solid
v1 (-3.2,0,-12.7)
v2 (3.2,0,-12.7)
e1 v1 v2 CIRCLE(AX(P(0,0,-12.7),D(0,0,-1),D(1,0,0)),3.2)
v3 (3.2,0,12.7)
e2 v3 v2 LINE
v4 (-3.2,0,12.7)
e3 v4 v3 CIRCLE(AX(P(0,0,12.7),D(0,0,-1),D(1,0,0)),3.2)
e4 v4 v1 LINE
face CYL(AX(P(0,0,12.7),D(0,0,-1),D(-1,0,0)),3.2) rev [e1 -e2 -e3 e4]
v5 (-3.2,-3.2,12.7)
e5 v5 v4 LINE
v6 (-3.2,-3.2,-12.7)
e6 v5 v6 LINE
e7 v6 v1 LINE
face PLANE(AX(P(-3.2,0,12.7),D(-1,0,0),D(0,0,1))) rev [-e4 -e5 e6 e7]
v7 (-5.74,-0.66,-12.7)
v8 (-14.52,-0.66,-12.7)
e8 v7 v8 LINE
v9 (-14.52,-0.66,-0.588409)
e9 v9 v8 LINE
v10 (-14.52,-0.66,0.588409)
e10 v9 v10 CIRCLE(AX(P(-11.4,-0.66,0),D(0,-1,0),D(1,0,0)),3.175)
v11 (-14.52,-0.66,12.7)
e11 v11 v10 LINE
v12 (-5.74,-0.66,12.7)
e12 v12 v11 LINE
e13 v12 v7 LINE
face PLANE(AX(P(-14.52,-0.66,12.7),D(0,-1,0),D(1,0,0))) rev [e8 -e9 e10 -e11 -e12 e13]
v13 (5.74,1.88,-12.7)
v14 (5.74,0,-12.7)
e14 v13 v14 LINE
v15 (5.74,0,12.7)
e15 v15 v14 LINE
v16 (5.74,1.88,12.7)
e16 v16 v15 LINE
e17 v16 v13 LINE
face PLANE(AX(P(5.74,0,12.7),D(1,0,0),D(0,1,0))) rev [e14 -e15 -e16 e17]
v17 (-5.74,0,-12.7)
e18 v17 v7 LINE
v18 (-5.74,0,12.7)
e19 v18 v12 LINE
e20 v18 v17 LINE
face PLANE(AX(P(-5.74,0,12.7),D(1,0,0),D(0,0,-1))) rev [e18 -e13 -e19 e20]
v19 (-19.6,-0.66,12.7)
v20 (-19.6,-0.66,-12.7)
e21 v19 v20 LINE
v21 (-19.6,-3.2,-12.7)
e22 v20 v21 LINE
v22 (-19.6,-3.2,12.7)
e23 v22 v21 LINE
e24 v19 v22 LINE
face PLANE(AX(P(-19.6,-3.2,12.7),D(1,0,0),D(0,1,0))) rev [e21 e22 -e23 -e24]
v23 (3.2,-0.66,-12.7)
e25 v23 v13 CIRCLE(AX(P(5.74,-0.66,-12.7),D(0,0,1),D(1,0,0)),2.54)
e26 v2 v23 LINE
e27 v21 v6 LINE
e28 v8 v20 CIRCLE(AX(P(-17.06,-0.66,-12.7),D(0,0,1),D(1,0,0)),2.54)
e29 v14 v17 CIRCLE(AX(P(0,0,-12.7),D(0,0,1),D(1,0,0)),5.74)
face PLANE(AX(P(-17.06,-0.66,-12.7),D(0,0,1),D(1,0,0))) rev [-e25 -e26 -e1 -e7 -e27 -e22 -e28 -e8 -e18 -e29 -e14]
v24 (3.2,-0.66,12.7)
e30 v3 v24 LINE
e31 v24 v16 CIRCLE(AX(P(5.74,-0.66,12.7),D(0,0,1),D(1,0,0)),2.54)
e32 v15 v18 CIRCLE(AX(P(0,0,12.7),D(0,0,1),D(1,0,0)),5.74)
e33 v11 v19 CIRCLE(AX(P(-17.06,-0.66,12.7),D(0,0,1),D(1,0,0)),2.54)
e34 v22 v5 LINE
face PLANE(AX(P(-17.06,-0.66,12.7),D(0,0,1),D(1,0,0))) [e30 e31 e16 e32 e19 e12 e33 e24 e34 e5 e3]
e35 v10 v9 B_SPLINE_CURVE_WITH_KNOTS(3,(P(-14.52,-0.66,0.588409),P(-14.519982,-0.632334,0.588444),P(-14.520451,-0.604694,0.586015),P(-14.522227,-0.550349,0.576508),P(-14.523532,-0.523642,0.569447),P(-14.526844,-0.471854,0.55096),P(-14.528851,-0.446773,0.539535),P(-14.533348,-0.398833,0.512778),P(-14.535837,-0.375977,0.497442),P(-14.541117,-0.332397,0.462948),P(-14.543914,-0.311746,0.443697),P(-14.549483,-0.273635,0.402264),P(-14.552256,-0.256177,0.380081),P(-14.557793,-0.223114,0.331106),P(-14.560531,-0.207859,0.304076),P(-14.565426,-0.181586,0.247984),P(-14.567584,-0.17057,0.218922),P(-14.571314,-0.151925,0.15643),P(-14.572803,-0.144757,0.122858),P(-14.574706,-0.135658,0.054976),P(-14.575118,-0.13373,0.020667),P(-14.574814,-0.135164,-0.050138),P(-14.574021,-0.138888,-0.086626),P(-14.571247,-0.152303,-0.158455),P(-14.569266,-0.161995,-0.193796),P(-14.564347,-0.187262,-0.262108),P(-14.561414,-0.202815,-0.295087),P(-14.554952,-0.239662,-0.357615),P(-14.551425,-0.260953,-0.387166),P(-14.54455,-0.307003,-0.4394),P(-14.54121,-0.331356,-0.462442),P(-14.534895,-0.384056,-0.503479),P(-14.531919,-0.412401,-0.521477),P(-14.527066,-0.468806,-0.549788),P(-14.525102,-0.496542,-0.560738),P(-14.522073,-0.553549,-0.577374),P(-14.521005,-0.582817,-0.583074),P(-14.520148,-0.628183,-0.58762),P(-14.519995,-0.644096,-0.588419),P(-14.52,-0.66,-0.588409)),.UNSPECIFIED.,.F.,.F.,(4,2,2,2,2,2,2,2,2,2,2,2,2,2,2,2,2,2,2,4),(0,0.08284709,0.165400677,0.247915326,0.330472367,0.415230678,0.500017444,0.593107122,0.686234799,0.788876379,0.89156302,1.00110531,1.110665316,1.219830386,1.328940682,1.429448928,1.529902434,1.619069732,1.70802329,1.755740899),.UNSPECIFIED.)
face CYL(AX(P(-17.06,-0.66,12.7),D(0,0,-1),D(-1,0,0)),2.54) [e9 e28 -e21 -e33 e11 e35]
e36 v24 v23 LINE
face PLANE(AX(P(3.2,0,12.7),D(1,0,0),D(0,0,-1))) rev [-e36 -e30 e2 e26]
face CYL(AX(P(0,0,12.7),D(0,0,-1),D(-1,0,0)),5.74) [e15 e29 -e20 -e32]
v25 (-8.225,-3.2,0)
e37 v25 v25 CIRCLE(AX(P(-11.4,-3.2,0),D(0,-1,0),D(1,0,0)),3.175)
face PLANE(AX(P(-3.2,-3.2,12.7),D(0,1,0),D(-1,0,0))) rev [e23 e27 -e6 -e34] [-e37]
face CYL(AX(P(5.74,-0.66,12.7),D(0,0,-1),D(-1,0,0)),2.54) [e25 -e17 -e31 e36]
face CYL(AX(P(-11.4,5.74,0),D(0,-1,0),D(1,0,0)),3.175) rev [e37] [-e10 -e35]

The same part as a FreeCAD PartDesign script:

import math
import FreeCAD as App
import Part
import Sketcher
from FreeCAD import Vector
Q = App.Units.Quantity

doc = App.newDocument("Part")
body = doc.addObject("PartDesign::Body", "Body")

sketch1 = body.newObject("Sketcher::SketchObject", "Sketch")
sketch1.AttachmentSupport = (doc.getObject("XY_Plane"), [""])
sketch1.MapMode = "FlatFace"
sketch1.addGeometry([
    Part.LineSegment(Vector(-5.74, -0.66, 0), Vector(-14.52, -0.66, 0)),
    Part.ArcOfCircle(Part.Circle(Vector(-17.06, -0.66, 0), Vector(0, 0, 1), 2.54), math.radians(0), math.radians(180)),
    Part.LineSegment(Vector(-19.6, -0.66, 0), Vector(-19.6, -3.2, 0)),
    Part.LineSegment(Vector(-19.6, -3.2, 0), Vector(-3.2, -3.2, 0)),
    Part.LineSegment(Vector(-3.2, -3.2, 0), Vector(-3.2, 0, 0)),
    Part.ArcOfCircle(Part.Circle(Vector(0, 0, 0), Vector(0, 0, 1), 3.2), math.radians(0), math.radians(180)),
    Part.LineSegment(Vector(3.2, 0, 0), Vector(3.2, -0.66, 0)),
    Part.ArcOfCircle(Part.Circle(Vector(5.74, -0.66, 0), Vector(0, 0, 1), 2.54), math.radians(180), math.radians(450)),
    Part.LineSegment(Vector(5.74, 1.88, 0), Vector(5.74, 0, 0)),
    Part.ArcOfCircle(Part.Circle(Vector(0, 0, 0), Vector(0, 0, 1), 5.74), math.radians(0), math.radians(180)),
    Part.LineSegment(Vector(-5.74, 0, 0), Vector(-5.74, -0.66, 0)),
], False)
sketch1.addConstraint([
    Sketcher.Constraint("Coincident", 0, 2, 1, 1),
    Sketcher.Constraint("Tangent", 1, 2, 2, 1),
    Sketcher.Constraint("Coincident", 2, 2, 3, 1),
    Sketcher.Constraint("Coincident", 3, 2, 4, 1),
    Sketcher.Constraint("Tangent", 4, 2, 5, 2),
    Sketcher.Constraint("Tangent", 5, 1, 6, 1),
    Sketcher.Constraint("Tangent", 6, 2, 7, 1),
    Sketcher.Constraint("Coincident", 7, 2, 8, 1),
    Sketcher.Constraint("Tangent", 8, 2, 9, 1),
    Sketcher.Constraint("Tangent", 9, 2, 10, 1),
    Sketcher.Constraint("Coincident", 10, 2, 0, 1),
    Sketcher.Constraint("Horizontal", 0),
    Sketcher.Constraint("Vertical", 2),
    Sketcher.Constraint("Horizontal", 3),
    Sketcher.Constraint("Vertical", 4),
    Sketcher.Constraint("Vertical", 6),
    Sketcher.Constraint("Vertical", 8),
    Sketcher.Constraint("Vertical", 10),
    Sketcher.Constraint("Coincident", 5, 3, -1, 1),
    Sketcher.Constraint("Coincident", 9, 3, -1, 1),
    Sketcher.Constraint("Equal", 1, 7),
    Sketcher.Constraint("Horizontal", 1, 3, 7, 3),
    Sketcher.Constraint("Horizontal", 7, 3, 0, 2),
    Sketcher.Constraint("Radius", 1, Q("0.1 in")),
    Sketcher.Constraint("DistanceY", 2, 2, 2, 1, Q("0.1 in")),
    Sketcher.Constraint("DistanceX", 5, 1, 7, 2, Q("0.1 in")),
    Sketcher.Constraint("Radius", 5, Q("3.2 mm")),
    Sketcher.Constraint("DistanceX", 0, 2, 0, 1, Q("8.78 mm")),
    Sketcher.Constraint("DistanceY", 4, 1, 4, 2, Q("3.2 mm")),
])
pad1 = body.newObject("PartDesign::Pad", "Pad")
pad1.Profile = sketch1
pad1.Length = Q("1 in")
pad1.Midplane = True

sketch2 = body.newObject("Sketcher::SketchObject", "Sketch001")
sketch2.AttachmentSupport = (doc.getObject("XZ_Plane"), [""])
sketch2.MapMode = "FlatFace"
sketch2.AttachmentOffset = App.Placement(Vector(0, 0, 3.2), App.Rotation())
sketch2.addGeometry(Part.Circle(Vector(-11.4, 0, 0), Vector(0, 0, 1), 3.175), False)
sketch2.addConstraint([
    Sketcher.Constraint("PointOnObject", 0, 3, -1),
    Sketcher.Constraint("Diameter", 0, Q("0.25 in")),
    Sketcher.Constraint("DistanceX", 0, 3, -1, 1, Q("11.4 mm")),
])
pocket1 = body.newObject("PartDesign::Pocket", "Pocket")
pocket1.Profile = sketch2
pocket1.Type = "ThroughAll"

doc.recompute()
